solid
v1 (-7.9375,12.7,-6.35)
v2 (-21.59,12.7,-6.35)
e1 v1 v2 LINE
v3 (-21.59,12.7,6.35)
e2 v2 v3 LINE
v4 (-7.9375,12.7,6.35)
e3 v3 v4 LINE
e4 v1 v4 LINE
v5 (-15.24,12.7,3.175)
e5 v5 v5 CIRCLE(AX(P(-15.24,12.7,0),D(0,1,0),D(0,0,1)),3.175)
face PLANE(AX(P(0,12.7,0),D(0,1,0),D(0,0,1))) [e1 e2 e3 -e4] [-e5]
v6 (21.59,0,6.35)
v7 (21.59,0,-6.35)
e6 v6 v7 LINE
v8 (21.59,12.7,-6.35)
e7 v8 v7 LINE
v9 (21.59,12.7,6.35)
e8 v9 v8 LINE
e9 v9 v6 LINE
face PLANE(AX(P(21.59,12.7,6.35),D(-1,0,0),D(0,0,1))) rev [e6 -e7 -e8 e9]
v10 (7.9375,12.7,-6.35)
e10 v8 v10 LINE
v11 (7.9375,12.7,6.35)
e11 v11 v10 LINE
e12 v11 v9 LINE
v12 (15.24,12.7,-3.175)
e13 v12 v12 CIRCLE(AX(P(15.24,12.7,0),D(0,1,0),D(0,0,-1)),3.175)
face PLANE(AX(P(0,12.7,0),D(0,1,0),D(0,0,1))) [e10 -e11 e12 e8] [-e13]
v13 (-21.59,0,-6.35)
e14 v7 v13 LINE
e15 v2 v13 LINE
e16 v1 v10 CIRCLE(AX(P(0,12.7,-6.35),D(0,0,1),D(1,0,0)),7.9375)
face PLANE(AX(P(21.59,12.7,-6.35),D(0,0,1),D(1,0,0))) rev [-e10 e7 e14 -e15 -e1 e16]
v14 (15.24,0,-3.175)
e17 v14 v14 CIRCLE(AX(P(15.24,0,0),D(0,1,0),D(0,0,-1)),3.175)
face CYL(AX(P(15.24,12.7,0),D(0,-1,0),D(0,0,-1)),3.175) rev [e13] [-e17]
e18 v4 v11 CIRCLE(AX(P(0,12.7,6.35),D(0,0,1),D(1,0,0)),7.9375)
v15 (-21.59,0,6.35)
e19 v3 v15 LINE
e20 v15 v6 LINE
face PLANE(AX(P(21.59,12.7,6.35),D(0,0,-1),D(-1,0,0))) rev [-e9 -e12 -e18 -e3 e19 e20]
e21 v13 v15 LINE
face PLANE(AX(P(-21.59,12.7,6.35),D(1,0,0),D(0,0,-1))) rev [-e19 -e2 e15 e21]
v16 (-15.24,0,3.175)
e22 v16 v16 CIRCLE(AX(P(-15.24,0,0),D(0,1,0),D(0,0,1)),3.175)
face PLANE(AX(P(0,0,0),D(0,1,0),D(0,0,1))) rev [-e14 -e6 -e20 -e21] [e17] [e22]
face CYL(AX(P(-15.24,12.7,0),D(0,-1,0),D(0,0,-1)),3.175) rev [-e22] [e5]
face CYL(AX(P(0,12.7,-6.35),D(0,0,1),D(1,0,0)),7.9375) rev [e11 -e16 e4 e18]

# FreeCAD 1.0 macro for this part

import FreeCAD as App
import Part
import Sketcher
Q = App.Units.Quantity

doc = App.newDocument("Part")
body = doc.addObject("PartDesign::Body", "Body")

sketch1 = body.newObject("Sketcher::SketchObject", "Sketch")
sketch1.AttachmentSupport = (doc.getObject("XZ_Plane"), [""])
sketch1.MapMode = "FlatFace"
sketch1.addGeometry(Part.LineSegment(App.Vector(-21.6, -6.3, 0), App.Vector(-21.6, 6.3, 0)), False)
sketch1.addGeometry(Part.LineSegment(App.Vector(-21.6, 6.3, 0), App.Vector(21.6, 6.3, 0)), False)
sketch1.addGeometry(Part.LineSegment(App.Vector(21.6, 6.3, 0), App.Vector(21.6, -6.3, 0)), False)
sketch1.addGeometry(Part.LineSegment(App.Vector(21.6, -6.3, 0), App.Vector(-21.6, -6.3, 0)), False)
sketch1.addGeometry(Part.Circle(App.Vector(-15.2, 0, 0), App.Vector(0, 0, 1), 3.2), False)
sketch1.addGeometry(Part.Circle(App.Vector(15.2, 0, 0), App.Vector(0, 0, 1), 3.2), False)
sketch1.addConstraint(Sketcher.Constraint("Coincident", 0, 2, 1, 1))
sketch1.addConstraint(Sketcher.Constraint("Coincident", 1, 2, 2, 1))
sketch1.addConstraint(Sketcher.Constraint("Coincident", 2, 2, 3, 1))
sketch1.addConstraint(Sketcher.Constraint("Coincident", 3, 2, 0, 1))
sketch1.addConstraint(Sketcher.Constraint("Vertical", 0))
sketch1.addConstraint(Sketcher.Constraint("Horizontal", 1))
sketch1.addConstraint(Sketcher.Constraint("Vertical", 2))
sketch1.addConstraint(Sketcher.Constraint("Horizontal", 3))
sketch1.addConstraint(Sketcher.Constraint("Equal", 4, 5))
sketch1.addConstraint(Sketcher.Constraint("Symmetric", 4, 3, 5, 3, -1, 1))
sketch1.addConstraint(Sketcher.Constraint("Symmetric", 0, 2, 2, 2, -1, 1))
sketch1.addConstraint(Sketcher.Constraint("PointOnObject", 4, 3, -1))
sketch1.addConstraint(Sketcher.Constraint("Diameter", 4, Q("0.25 in")))
sketch1.addConstraint(Sketcher.Constraint("DistanceX", 1, 1, 1, 2, Q("1.7 in")))
sketch1.addConstraint(Sketcher.Constraint("DistanceY", 0, 1, 0, 2, Q("0.5 in")))
sketch1.addConstraint(Sketcher.Constraint("DistanceX", 4, 3, -1, 1, Q("0.6 in")))
pad1 = body.newObject("PartDesign::Pad", "Pad")
pad1.Profile = sketch1
pad1.Length = Q("0.5 in")
pad1.Reversed = True

sketch2 = body.newObject("Sketcher::SketchObject", "Sketch001")
sketch2.AttachmentSupport = (doc.getObject("XY_Plane"), [""])
sketch2.MapMode = "FlatFace"
sketch2.AttachmentOffset = App.Placement(App.Vector(0, 0, 0.25 * 25.4), App.Rotation())
sketch2.addGeometry(Part.Circle(App.Vector(0, 13, 0), App.Vector(0, 0, 1), 8), False)
sketch2.addConstraint(Sketcher.Constraint("PointOnObject", 0, 3, -2))
sketch2.addConstraint(Sketcher.Constraint("Diameter", 0, Q("0.625 in")))
sketch2.addConstraint(Sketcher.Constraint("DistanceY", -1, 1, 0, 3, Q("0.5 in")))
pocket1 = body.newObject("PartDesign::Pocket", "Pocket")
pocket1.Profile = sketch2
pocket1.Type = "ThroughAll"

doc.recompute()
